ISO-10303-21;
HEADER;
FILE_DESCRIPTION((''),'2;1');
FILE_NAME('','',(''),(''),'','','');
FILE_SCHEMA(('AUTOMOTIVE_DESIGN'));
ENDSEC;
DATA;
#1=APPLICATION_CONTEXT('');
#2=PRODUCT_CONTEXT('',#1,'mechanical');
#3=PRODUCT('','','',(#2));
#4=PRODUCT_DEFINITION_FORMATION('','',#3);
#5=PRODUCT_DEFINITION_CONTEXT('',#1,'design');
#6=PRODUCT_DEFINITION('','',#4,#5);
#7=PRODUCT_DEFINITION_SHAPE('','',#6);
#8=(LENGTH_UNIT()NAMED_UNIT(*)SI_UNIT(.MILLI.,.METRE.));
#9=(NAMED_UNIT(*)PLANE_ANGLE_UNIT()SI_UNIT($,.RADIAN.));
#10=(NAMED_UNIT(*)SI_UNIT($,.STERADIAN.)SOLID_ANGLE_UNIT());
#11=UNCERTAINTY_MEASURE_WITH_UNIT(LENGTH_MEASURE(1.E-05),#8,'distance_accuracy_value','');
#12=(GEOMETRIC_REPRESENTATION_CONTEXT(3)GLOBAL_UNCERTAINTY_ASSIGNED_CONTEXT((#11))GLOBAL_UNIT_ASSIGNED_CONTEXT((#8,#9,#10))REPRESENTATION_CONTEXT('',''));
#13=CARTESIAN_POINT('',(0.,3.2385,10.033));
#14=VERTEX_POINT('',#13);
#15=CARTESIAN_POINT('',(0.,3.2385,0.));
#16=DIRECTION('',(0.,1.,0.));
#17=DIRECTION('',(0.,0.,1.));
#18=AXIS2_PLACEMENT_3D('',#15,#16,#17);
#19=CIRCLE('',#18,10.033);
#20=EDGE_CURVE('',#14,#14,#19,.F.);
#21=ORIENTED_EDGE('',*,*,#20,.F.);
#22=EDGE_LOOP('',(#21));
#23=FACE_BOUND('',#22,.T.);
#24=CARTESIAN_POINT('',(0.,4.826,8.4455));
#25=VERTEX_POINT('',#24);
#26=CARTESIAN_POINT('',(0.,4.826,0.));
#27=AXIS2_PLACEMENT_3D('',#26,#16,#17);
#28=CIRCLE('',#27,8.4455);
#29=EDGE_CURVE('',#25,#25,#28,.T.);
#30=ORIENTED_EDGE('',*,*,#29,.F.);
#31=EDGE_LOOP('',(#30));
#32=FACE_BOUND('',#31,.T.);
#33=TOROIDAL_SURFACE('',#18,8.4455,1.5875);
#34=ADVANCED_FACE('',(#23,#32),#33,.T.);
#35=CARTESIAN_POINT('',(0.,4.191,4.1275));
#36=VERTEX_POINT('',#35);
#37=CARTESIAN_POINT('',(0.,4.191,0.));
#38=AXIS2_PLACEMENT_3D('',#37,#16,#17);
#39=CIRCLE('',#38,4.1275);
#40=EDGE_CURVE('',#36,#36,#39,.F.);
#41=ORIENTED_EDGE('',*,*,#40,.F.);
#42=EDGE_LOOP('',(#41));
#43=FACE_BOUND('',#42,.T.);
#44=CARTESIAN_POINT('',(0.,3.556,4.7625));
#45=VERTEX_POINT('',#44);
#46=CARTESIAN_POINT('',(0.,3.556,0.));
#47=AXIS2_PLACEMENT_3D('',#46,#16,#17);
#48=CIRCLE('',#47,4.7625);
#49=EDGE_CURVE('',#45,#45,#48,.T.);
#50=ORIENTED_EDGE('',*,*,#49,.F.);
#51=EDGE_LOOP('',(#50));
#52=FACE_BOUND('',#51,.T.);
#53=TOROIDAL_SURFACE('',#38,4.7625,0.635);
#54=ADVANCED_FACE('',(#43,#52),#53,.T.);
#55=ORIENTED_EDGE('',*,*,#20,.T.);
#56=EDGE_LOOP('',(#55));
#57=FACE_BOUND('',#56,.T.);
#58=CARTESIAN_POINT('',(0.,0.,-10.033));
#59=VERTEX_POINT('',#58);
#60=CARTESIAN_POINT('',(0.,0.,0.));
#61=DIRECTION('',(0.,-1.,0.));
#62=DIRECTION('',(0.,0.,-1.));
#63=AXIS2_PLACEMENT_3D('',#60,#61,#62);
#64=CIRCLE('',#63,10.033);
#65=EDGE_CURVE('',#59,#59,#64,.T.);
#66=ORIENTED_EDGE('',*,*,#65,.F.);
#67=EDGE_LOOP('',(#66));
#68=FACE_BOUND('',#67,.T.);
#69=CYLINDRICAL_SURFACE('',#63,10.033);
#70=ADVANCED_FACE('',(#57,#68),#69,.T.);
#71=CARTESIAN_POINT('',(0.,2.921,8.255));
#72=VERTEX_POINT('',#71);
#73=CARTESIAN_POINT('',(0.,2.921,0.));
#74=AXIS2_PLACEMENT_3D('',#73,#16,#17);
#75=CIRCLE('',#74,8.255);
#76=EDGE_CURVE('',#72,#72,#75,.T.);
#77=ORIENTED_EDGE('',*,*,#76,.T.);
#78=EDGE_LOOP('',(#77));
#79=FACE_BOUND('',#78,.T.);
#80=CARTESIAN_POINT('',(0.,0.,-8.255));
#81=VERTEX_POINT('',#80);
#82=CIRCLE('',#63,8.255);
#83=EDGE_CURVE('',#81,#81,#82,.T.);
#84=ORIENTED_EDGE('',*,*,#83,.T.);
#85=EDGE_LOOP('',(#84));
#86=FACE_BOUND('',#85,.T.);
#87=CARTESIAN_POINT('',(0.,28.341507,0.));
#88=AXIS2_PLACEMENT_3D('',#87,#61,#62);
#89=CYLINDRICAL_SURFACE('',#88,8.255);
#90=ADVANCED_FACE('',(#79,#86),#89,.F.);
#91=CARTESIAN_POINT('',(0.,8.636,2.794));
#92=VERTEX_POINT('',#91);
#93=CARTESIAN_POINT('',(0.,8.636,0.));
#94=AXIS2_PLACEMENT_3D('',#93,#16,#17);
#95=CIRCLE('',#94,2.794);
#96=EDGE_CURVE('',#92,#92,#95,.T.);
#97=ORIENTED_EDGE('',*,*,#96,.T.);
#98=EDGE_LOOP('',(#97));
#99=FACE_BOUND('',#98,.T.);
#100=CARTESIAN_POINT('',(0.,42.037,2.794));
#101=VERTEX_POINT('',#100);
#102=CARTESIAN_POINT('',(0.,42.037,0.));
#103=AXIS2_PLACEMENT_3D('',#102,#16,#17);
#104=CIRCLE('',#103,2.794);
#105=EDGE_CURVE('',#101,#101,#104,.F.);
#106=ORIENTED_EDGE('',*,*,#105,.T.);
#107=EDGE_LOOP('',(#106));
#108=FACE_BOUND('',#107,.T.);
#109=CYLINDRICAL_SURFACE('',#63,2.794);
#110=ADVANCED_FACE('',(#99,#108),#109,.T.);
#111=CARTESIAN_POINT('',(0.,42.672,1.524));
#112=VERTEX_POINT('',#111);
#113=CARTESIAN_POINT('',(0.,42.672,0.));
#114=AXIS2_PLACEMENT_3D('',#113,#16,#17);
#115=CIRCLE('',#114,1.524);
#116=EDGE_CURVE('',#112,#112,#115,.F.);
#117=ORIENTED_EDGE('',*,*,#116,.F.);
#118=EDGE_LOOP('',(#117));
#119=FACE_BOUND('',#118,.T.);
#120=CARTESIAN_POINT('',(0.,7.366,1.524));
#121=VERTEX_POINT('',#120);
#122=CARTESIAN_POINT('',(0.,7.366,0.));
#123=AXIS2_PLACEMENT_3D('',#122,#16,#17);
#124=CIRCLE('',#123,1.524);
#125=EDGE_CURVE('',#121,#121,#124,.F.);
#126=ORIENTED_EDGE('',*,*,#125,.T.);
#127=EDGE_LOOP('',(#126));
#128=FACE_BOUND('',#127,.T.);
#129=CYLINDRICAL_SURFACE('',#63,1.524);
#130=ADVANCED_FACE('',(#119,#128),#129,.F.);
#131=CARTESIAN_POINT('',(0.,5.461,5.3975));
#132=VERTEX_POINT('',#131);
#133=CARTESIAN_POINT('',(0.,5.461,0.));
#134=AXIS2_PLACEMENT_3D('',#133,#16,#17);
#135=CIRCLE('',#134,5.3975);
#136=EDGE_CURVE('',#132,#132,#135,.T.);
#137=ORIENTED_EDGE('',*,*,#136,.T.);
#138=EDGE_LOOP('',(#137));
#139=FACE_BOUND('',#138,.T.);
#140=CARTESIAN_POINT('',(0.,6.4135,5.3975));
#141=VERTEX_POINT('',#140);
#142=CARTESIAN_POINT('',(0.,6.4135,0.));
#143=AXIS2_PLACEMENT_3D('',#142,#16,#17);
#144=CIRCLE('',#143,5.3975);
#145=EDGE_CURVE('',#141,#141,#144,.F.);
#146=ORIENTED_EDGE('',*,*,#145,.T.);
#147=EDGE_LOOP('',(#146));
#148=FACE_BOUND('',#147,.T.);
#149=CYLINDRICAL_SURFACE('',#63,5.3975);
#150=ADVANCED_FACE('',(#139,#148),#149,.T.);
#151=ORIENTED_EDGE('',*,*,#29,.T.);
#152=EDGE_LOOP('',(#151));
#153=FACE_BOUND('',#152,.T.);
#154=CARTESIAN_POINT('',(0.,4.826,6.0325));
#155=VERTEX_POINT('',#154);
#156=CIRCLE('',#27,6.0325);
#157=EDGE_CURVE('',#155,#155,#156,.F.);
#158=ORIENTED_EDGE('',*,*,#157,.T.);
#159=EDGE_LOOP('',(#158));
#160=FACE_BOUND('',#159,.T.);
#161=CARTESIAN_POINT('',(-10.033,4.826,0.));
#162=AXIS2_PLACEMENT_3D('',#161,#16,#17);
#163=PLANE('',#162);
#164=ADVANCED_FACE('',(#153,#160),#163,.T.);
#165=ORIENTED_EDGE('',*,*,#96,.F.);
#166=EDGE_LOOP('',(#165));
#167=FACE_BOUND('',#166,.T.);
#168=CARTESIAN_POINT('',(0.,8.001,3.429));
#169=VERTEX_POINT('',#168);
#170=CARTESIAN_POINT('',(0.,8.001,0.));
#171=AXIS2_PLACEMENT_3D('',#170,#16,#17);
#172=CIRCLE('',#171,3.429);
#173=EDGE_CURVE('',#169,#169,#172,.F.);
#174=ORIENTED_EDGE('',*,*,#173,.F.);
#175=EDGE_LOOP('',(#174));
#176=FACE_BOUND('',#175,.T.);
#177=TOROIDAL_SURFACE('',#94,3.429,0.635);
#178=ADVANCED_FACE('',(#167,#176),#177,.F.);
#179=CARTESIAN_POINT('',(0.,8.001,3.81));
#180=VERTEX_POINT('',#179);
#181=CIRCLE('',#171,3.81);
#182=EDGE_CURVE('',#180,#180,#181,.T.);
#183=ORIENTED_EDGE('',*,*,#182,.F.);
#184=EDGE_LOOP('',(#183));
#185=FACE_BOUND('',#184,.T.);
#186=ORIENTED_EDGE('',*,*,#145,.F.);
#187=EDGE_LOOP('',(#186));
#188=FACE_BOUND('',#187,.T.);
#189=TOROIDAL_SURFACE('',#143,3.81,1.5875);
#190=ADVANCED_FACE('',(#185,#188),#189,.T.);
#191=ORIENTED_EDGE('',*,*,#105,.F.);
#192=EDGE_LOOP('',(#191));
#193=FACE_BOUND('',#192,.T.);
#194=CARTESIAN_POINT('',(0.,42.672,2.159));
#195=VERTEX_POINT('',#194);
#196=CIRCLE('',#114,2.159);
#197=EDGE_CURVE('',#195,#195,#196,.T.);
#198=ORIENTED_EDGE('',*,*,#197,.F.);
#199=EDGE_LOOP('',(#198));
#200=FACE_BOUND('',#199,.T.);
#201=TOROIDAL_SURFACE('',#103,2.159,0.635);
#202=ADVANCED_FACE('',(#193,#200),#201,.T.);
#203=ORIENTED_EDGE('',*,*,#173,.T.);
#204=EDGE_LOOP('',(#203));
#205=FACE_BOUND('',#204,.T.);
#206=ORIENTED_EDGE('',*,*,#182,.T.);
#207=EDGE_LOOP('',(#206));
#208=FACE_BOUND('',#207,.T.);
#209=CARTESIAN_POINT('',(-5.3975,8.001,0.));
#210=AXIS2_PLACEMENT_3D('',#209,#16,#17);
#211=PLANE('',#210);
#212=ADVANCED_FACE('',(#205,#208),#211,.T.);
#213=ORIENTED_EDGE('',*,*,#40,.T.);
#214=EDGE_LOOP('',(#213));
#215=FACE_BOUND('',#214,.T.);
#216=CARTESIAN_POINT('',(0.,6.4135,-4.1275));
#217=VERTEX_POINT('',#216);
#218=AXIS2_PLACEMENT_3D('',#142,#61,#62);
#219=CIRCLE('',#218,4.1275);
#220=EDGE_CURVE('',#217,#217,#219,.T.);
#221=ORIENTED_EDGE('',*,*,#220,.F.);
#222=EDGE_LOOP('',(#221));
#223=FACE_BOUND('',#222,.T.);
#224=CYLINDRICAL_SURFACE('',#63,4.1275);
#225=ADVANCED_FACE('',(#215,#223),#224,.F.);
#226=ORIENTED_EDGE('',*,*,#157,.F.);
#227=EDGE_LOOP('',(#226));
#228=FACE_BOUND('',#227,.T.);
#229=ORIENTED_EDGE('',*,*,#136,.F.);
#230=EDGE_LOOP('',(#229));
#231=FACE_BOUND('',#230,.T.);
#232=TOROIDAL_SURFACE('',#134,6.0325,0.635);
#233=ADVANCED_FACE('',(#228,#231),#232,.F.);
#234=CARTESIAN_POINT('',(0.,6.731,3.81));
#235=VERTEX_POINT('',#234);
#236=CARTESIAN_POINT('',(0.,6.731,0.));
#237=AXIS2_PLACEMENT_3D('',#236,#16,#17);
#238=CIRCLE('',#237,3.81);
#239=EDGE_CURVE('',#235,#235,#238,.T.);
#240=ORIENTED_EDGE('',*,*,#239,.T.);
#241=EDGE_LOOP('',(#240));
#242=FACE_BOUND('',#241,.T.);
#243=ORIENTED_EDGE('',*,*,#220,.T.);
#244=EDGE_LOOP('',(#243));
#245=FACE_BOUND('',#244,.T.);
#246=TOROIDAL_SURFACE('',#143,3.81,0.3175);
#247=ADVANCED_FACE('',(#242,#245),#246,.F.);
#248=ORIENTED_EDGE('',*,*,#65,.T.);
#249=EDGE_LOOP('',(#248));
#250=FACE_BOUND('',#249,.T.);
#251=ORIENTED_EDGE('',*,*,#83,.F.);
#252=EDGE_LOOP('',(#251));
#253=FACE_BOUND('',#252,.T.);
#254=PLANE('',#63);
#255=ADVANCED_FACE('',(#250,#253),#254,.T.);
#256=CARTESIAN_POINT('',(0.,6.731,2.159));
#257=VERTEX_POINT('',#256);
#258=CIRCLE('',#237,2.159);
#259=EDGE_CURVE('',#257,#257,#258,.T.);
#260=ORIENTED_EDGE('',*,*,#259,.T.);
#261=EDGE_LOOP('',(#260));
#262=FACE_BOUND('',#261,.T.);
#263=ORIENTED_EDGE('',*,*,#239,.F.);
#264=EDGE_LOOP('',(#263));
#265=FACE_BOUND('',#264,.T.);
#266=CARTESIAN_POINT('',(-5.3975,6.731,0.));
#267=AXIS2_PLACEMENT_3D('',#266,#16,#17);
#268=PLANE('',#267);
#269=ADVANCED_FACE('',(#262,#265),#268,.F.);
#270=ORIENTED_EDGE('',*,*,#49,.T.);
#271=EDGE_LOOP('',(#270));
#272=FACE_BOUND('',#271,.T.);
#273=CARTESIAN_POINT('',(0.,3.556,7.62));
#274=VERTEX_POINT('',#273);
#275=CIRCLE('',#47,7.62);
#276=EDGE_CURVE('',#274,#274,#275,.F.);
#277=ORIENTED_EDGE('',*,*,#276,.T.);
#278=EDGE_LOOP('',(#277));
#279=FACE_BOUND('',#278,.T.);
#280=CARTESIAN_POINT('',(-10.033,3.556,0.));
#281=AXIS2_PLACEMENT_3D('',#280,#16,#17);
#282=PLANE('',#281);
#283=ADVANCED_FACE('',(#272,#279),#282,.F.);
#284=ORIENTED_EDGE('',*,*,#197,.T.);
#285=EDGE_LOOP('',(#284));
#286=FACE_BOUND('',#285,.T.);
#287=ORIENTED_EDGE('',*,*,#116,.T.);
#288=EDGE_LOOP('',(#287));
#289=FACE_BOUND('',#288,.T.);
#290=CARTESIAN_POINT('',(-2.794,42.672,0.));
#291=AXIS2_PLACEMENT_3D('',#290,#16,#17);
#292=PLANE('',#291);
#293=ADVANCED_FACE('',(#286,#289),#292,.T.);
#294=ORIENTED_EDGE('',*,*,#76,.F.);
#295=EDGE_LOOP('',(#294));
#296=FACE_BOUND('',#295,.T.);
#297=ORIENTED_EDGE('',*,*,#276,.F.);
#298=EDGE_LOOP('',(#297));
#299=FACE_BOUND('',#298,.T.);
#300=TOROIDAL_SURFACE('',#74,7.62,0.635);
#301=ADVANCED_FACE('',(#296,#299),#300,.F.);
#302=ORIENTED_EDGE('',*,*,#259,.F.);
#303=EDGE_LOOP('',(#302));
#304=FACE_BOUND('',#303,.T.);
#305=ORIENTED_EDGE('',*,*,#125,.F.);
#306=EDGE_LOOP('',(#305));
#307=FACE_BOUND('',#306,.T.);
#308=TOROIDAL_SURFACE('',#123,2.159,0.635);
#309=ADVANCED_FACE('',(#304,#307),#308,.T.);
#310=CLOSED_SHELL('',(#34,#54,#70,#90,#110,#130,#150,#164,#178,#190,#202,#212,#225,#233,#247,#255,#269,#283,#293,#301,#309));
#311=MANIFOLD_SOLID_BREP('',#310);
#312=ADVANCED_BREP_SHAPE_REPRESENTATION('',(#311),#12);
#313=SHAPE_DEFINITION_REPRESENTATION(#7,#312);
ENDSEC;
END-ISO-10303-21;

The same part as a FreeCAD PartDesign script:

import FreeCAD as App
import Part
import Sketcher

V = App.Vector
Q = App.Units.Quantity


def edges_at(feature, points):
    """Names of the edges that pass closest to the given points."""
    edges = feature.Shape.Edges
    near = lambda p: min(range(len(edges)), key=lambda i: edges[i].distToShape(Part.Vertex(*p))[0])
    return sorted({f"Edge{near(p) + 1}" for p in points})


def faces_at(feature, points):
    """Names of the faces that lie closest to the given points."""
    faces = feature.Shape.Faces
    near = lambda p: min(range(len(faces)), key=lambda i: faces[i].distToShape(Part.Vertex(*p))[0])
    return sorted({f"Face{near(p) + 1}" for p in points})


def add_polygon(sketch, points):
    """Adds a closed chain of lines whose ends are joined by coincident constraints."""
    first, n = sketch.GeometryCount, len(points)
    for a, b in zip(points, points[1:] + points[:1]):
        sketch.addGeometry(Part.LineSegment(App.Vector(*a, 0), App.Vector(*b, 0)), False)
    for i in range(n):
        sketch.addConstraint(Sketcher.Constraint("Coincident", first + i, 2, first + (i + 1) % n, 1))

doc = App.newDocument("Part")
body = doc.addObject("PartDesign::Body", "Body")

# Sketch on XY plane
sketch1 = doc.addObject("Sketcher::SketchObject", "Sketch")
body.addObject(sketch1)
sketch1.AttachmentSupport = (doc.XY_Plane, [""])
sketch1.MapMode = "FlatFace"
add_polygon(sketch1, [(-10, 0), (0, 0), (0, 42.7), (-2.8, 42.7), (-2.8, 8), (-5.4, 8), (-5.4, 4.8), (-10, 4.8)])  # lines 0-7
sketch1.addConstraint([
    Sketcher.Constraint("Horizontal", 0),
    Sketcher.Constraint("Vertical", 1),
    Sketcher.Constraint("Horizontal", 2),
    Sketcher.Constraint("Vertical", 3),
    Sketcher.Constraint("Horizontal", 4),
    Sketcher.Constraint("Vertical", 5),
    Sketcher.Constraint("Horizontal", 6),
    Sketcher.Constraint("Vertical", 7),
    Sketcher.Constraint("Coincident", 0, 2, -1, 1),
    Sketcher.Constraint("DistanceX", 2, 2, 2, 1, Q("0.11 in")),
    Sketcher.Constraint("DistanceY", 1, 1, 1, 2, Q("1.68 in")),
    Sketcher.Constraint("DistanceY", 7, 2, 7, 1, Q("0.19 in")),
    Sketcher.Constraint("DistanceX", 0, 1, 0, 2, Q("0.395 in")),
    Sketcher.Constraint("DistanceY", 3, 2, 3, 1, Q("1.365 in")),
    Sketcher.Constraint("DistanceX", 4, 2, 4, 1, Q("0.1025 in")),
])
revolution = doc.addObject("PartDesign::Revolution", "Revolution")
body.addObject(revolution)
revolution.Profile = sketch1
revolution.ReferenceAxis = (sketch1, ["V_Axis"])
revolution.Angle = 360
doc.recompute()

fillet = doc.addObject("PartDesign::Fillet", "Fillet")
body.addObject(fillet)
fillet.Base = (revolution, edges_at(revolution, [(0, 4.826, 10.033), (0, 8.001, 5.397)]))
fillet.Radius = Q("0.0625 in")
doc.recompute()

thickness = doc.addObject("PartDesign::Thickness", "Thickness")
body.addObject(thickness)
thickness.Base = (fillet, faces_at(fillet, [(0, 0, 0), (0, 42.672, 0)]))
thickness.Value = Q("0.05 in")
thickness.Reversed = True
thickness.Join = "Intersection"

# Sketch on XZ plane
sketch2 = doc.addObject("Sketcher::SketchObject", "Sketch001")
body.addObject(sketch2)
sketch2.AttachmentSupport = (doc.XZ_Plane, [""])
sketch2.MapMode = "FlatFace"
sketch2.addGeometry([
    Part.Circle(V(0, 0, 0), V(0, 0, 1), 9),
    Part.Circle(V(0, 0, 0), V(0, 0, 1), 8),
], False)
sketch2.addConstraint([
    Sketcher.Constraint("Coincident", 0, 3, -1, 1),
    Sketcher.Constraint("Coincident", 1, 3, -1, 1),
    Sketcher.Constraint("Diameter", 0, Q("0.69 in")),
    Sketcher.Constraint("Diameter", 1, Q("0.65 in")),
])
pad1 = doc.addObject("PartDesign::Pad", "Pad")
body.addObject(pad1)
pad1.Profile = sketch2
pad1.Length = Q("0.14 in")
pad1.Reversed = True
doc.recompute()

fillet2 = doc.addObject("PartDesign::Fillet", "Fillet001")
body.addObject(fillet2)
fillet2.Base = (pad1, edges_at(pad1, [
    (0, 6.731, 1.524),
    (0, 3.556, 4.128),
    (0, 3.556, 8.255),
    (0, 4.826, 5.397),
    (0, 8.001, 2.794),
    (0, 42.672, 2.794),
]))
fillet2.Radius = Q("0.025 in")

doc.recompute()
